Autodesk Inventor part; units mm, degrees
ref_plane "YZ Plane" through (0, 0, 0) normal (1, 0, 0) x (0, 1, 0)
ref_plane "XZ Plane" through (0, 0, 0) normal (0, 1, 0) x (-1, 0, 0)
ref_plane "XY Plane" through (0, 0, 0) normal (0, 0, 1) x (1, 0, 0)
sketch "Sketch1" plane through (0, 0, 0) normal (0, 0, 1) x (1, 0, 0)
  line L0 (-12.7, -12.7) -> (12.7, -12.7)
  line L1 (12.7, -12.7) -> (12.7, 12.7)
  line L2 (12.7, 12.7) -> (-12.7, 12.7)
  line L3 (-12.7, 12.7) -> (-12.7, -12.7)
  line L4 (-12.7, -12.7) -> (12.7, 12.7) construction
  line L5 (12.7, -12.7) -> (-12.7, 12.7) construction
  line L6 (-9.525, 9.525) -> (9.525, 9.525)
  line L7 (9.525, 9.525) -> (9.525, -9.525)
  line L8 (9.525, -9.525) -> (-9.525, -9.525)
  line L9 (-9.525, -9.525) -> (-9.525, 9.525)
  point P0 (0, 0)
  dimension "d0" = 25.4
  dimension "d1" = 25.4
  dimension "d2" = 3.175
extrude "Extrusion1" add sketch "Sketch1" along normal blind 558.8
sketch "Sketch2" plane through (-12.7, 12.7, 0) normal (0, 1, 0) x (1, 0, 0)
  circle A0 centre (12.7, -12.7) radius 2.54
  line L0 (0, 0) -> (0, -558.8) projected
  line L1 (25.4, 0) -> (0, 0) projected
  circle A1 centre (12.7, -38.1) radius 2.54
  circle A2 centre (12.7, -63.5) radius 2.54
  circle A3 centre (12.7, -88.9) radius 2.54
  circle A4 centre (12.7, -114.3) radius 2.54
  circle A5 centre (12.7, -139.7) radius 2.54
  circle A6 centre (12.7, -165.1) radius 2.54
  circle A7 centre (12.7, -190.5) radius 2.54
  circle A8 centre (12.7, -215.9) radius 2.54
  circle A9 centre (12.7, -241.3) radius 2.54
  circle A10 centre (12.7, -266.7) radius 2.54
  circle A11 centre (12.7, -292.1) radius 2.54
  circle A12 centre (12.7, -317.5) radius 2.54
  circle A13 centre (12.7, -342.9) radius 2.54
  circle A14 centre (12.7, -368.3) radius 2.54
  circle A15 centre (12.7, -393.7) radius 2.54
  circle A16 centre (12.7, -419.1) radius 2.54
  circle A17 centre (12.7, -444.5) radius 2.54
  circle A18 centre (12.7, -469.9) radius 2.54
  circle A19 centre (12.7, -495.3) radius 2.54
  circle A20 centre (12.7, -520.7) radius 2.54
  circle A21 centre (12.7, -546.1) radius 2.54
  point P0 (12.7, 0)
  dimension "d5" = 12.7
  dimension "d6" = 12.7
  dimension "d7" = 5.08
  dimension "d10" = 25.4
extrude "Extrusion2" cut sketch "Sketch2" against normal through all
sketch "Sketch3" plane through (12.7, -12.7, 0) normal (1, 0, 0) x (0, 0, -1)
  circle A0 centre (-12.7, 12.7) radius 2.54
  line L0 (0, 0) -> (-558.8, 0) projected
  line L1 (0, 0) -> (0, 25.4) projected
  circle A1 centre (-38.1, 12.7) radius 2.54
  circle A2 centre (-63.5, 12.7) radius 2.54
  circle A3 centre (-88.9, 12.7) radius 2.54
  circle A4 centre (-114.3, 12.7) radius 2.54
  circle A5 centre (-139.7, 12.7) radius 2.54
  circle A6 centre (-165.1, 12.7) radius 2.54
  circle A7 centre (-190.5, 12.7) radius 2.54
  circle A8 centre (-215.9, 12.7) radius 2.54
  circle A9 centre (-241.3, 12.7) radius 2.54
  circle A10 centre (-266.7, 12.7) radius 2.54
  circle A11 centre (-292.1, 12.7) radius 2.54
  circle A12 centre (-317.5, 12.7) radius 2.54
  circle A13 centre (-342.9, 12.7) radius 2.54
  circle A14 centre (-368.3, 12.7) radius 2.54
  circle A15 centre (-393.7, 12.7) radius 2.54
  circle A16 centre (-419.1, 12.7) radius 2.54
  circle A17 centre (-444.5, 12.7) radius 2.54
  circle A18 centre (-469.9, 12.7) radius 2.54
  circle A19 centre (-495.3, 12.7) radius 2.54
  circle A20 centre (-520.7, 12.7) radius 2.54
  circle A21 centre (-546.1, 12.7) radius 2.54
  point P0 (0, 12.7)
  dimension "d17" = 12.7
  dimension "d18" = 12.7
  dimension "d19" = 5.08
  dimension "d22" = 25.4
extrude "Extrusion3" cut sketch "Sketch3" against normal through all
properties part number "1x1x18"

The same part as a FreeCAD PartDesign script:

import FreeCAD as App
import Part
import Sketcher
from FreeCAD import Vector
Q = App.Units.Quantity


def add_polygon(sketch, points):
    """Adds a closed chain of lines whose ends are joined by coincident constraints."""
    first, n = sketch.GeometryCount, len(points)
    for a, b in zip(points, points[1:] + points[:1]):
        sketch.addGeometry(Part.LineSegment(App.Vector(*a, 0), App.Vector(*b, 0)), False)
    for i in range(n):
        sketch.addConstraint(Sketcher.Constraint("Coincident", first + i, 2, first + (i + 1) % n, 1))

doc = App.newDocument("Part")
body = doc.addObject("PartDesign::Body", "Body")

# Sketch on XY plane
sketch1 = body.newObject("Sketcher::SketchObject", "Sketch")
sketch1.AttachmentSupport = (doc.getObject("XY_Plane"), [""])
sketch1.MapMode = "FlatFace"
add_polygon(sketch1, [(-12.7, 12.7), (-12.7, -12.7), (12.7, -12.7), (12.7, 12.7)])  # lines 0-3
add_polygon(sketch1, [(-9.525, -9.525), (-9.525, 9.525), (9.525, 9.525), (9.525, -9.525)])  # lines 4-7
sketch1.addConstraint(Sketcher.Constraint("Vertical", 0))
sketch1.addConstraint(Sketcher.Constraint("Horizontal", 1))
sketch1.addConstraint(Sketcher.Constraint("Vertical", 2))
sketch1.addConstraint(Sketcher.Constraint("Horizontal", 3))
sketch1.addConstraint(Sketcher.Constraint("Vertical", 4))
sketch1.addConstraint(Sketcher.Constraint("Horizontal", 5))
sketch1.addConstraint(Sketcher.Constraint("Vertical", 6))
sketch1.addConstraint(Sketcher.Constraint("Horizontal", 7))
sketch1.addConstraint(Sketcher.Constraint("Symmetric", 0, 2, 2, 2, -1, 1))
sketch1.addConstraint(Sketcher.Constraint("Symmetric", 4, 2, 6, 2, -1, 1))
sketch1.addConstraint(Sketcher.Constraint("Equal", 3, 0))
sketch1.addConstraint(Sketcher.Constraint("Equal", 7, 4))
sketch1.addConstraint(Sketcher.Constraint("DistanceX", 1, 1, 1, 2, Q("1 in")))
sketch1.addConstraint(Sketcher.Constraint("DistanceX", 3, 2, 4, 2, Q("0.125 in")))
pad1 = body.newObject("PartDesign::Pad", "Pad")
pad1.Profile = sketch1
pad1.Length = Q("22 in")

# Sketch on XZ plane
sketch2 = body.newObject("Sketcher::SketchObject", "Sketch001")
sketch2.AttachmentSupport = (doc.getObject("XZ_Plane"), [""])
sketch2.MapMode = "FlatFace"
sketch2.AttachmentOffset = App.Placement(Vector(0, 0, -0.5 * 25.4), App.Rotation())
sketch2.addGeometry(Part.Circle(Vector(0, 12.7, 0), Vector(0, 0, 1), 2.54), False)
sketch2.addGeometry(Part.Circle(Vector(0, 38.1, 0), Vector(0, 0, 1), 2.54), False)
sketch2.addGeometry(Part.Circle(Vector(0, 63.5, 0), Vector(0, 0, 1), 2.54), False)
sketch2.addGeometry(Part.Circle(Vector(0, 88.9, 0), Vector(0, 0, 1), 2.54), False)
sketch2.addGeometry(Part.Circle(Vector(0, 114.3, 0), Vector(0, 0, 1), 2.54), False)
sketch2.addGeometry(Part.Circle(Vector(0, 139.7, 0), Vector(0, 0, 1), 2.54), False)
sketch2.addGeometry(Part.Circle(Vector(0, 165.1, 0), Vector(0, 0, 1), 2.54), False)
sketch2.addGeometry(Part.Circle(Vector(0, 190.5, 0), Vector(0, 0, 1), 2.54), False)
sketch2.addGeometry(Part.Circle(Vector(0, 215.9, 0), Vector(0, 0, 1), 2.54), False)
sketch2.addGeometry(Part.Circle(Vector(0, 241.3, 0), Vector(0, 0, 1), 2.54), False)
sketch2.addGeometry(Part.Circle(Vector(0, 266.7, 0), Vector(0, 0, 1), 2.54), False)
sketch2.addGeometry(Part.Circle(Vector(0, 292.1, 0), Vector(0, 0, 1), 2.54), False)
sketch2.addGeometry(Part.Circle(Vector(0, 317.5, 0), Vector(0, 0, 1), 2.54), False)
sketch2.addGeometry(Part.Circle(Vector(0, 342.9, 0), Vector(0, 0, 1), 2.54), False)
sketch2.addGeometry(Part.Circle(Vector(0, 368.3, 0), Vector(0, 0, 1), 2.54), False)
sketch2.addGeometry(Part.Circle(Vector(0, 393.7, 0), Vector(0, 0, 1), 2.54), False)
sketch2.addGeometry(Part.Circle(Vector(0, 419.1, 0), Vector(0, 0, 1), 2.54), False)
sketch2.addGeometry(Part.Circle(Vector(0, 444.5, 0), Vector(0, 0, 1), 2.54), False)
sketch2.addGeometry(Part.Circle(Vector(0, 469.9, 0), Vector(0, 0, 1), 2.54), False)
sketch2.addGeometry(Part.Circle(Vector(0, 495.3, 0), Vector(0, 0, 1), 2.54), False)
sketch2.addGeometry(Part.Circle(Vector(0, 520.7, 0), Vector(0, 0, 1), 2.54), False)
sketch2.addGeometry(Part.Circle(Vector(0, 546.1, 0), Vector(0, 0, 1), 2.54), False)
sketch2.addConstraint(Sketcher.Constraint("Equal", 0, 1))
sketch2.addConstraint(Sketcher.Constraint("Equal", 1, 2))
sketch2.addConstraint(Sketcher.Constraint("Equal", 2, 3))
sketch2.addConstraint(Sketcher.Constraint("Equal", 3, 4))
sketch2.addConstraint(Sketcher.Constraint("Equal", 4, 5))
sketch2.addConstraint(Sketcher.Constraint("Equal", 5, 6))
sketch2.addConstraint(Sketcher.Constraint("Equal", 6, 7))
sketch2.addConstraint(Sketcher.Constraint("Equal", 7, 8))
sketch2.addConstraint(Sketcher.Constraint("Equal", 8, 9))
sketch2.addConstraint(Sketcher.Constraint("Equal", 9, 10))
sketch2.addConstraint(Sketcher.Constraint("Equal", 10, 11))
sketch2.addConstraint(Sketcher.Constraint("Equal", 11, 12))
sketch2.addConstraint(Sketcher.Constraint("Equal", 12, 13))
sketch2.addConstraint(Sketcher.Constraint("Equal", 13, 14))
sketch2.addConstraint(Sketcher.Constraint("Equal", 14, 15))
sketch2.addConstraint(Sketcher.Constraint("Equal", 15, 16))
sketch2.addConstraint(Sketcher.Constraint("Equal", 16, 17))
sketch2.addConstraint(Sketcher.Constraint("Equal", 17, 18))
sketch2.addConstraint(Sketcher.Constraint("Equal", 18, 19))
sketch2.addConstraint(Sketcher.Constraint("Equal", 19, 20))
sketch2.addConstraint(Sketcher.Constraint("Equal", 20, 21))
sketch2.addConstraint(Sketcher.Constraint("PointOnObject", 0, 3, -2))
sketch2.addConstraint(Sketcher.Constraint("PointOnObject", 1, 3, -2))
sketch2.addConstraint(Sketcher.Constraint("PointOnObject", 2, 3, -2))
sketch2.addConstraint(Sketcher.Constraint("PointOnObject", 3, 3, -2))
sketch2.addConstraint(Sketcher.Constraint("PointOnObject", 4, 3, -2))
sketch2.addConstraint(Sketcher.Constraint("PointOnObject", 5, 3, -2))
sketch2.addConstraint(Sketcher.Constraint("PointOnObject", 6, 3, -2))
sketch2.addConstraint(Sketcher.Constraint("PointOnObject", 7, 3, -2))
sketch2.addConstraint(Sketcher.Constraint("PointOnObject", 8, 3, -2))
sketch2.addConstraint(Sketcher.Constraint("PointOnObject", 9, 3, -2))
sketch2.addConstraint(Sketcher.Constraint("PointOnObject", 10, 3, -2))
sketch2.addConstraint(Sketcher.Constraint("PointOnObject", 11, 3, -2))
sketch2.addConstraint(Sketcher.Constraint("PointOnObject", 12, 3, -2))
sketch2.addConstraint(Sketcher.Constraint("PointOnObject", 13, 3, -2))
sketch2.addConstraint(Sketcher.Constraint("PointOnObject", 14, 3, -2))
sketch2.addConstraint(Sketcher.Constraint("PointOnObject", 15, 3, -2))
sketch2.addConstraint(Sketcher.Constraint("PointOnObject", 16, 3, -2))
sketch2.addConstraint(Sketcher.Constraint("PointOnObject", 17, 3, -2))
sketch2.addConstraint(Sketcher.Constraint("PointOnObject", 18, 3, -2))
sketch2.addConstraint(Sketcher.Constraint("PointOnObject", 19, 3, -2))
sketch2.addConstraint(Sketcher.Constraint("PointOnObject", 20, 3, -2))
sketch2.addConstraint(Sketcher.Constraint("PointOnObject", 21, 3, -2))
sketch2.addConstraint(Sketcher.Constraint("Diameter", 0, Q("0.2 in")))
sketch2.addConstraint(Sketcher.Constraint("DistanceY", 0, 3, 1, 3, Q("1 in")))
sketch2.addConstraint(Sketcher.Constraint("DistanceY", 1, 3, 2, 3, Q("1 in")))
sketch2.addConstraint(Sketcher.Constraint("DistanceY", 2, 3, 3, 3, Q("1 in")))
sketch2.addConstraint(Sketcher.Constraint("DistanceY", 3, 3, 4, 3, Q("1 in")))
sketch2.addConstraint(Sketcher.Constraint("DistanceY", 4, 3, 5, 3, Q("1 in")))
sketch2.addConstraint(Sketcher.Constraint("DistanceY", 5, 3, 6, 3, Q("1 in")))
sketch2.addConstraint(Sketcher.Constraint("DistanceY", 6, 3, 7, 3, Q("1 in")))
sketch2.addConstraint(Sketcher.Constraint("DistanceY", 7, 3, 8, 3, Q("1 in")))
sketch2.addConstraint(Sketcher.Constraint("DistanceY", 8, 3, 9, 3, Q("1 in")))
sketch2.addConstraint(Sketcher.Constraint("DistanceY", 9, 3, 10, 3, Q("1 in")))
sketch2.addConstraint(Sketcher.Constraint("DistanceY", 10, 3, 11, 3, Q("1 in")))
sketch2.addConstraint(Sketcher.Constraint("DistanceY", 11, 3, 12, 3, Q("1 in")))
sketch2.addConstraint(Sketcher.Constraint("DistanceY", 12, 3, 13, 3, Q("1 in")))
sketch2.addConstraint(Sketcher.Constraint("DistanceY", 13, 3, 14, 3, Q("1 in")))
sketch2.addConstraint(Sketcher.Constraint("DistanceY", 14, 3, 15, 3, Q("1 in")))
sketch2.addConstraint(Sketcher.Constraint("DistanceY", 15, 3, 16, 3, Q("1 in")))
sketch2.addConstraint(Sketcher.Constraint("DistanceY", 16, 3, 17, 3, Q("1 in")))
sketch2.addConstraint(Sketcher.Constraint("DistanceY", 17, 3, 18, 3, Q("1 in")))
sketch2.addConstraint(Sketcher.Constraint("DistanceY", 18, 3, 19, 3, Q("1 in")))
sketch2.addConstraint(Sketcher.Constraint("DistanceY", 19, 3, 20, 3, Q("1 in")))
sketch2.addConstraint(Sketcher.Constraint("DistanceY", 20, 3, 21, 3, Q("1 in")))
sketch2.addConstraint(Sketcher.Constraint("DistanceY", -1, 1, 0, 3, Q("0.5 in")))
pocket1 = body.newObject("PartDesign::Pocket", "Pocket")
pocket1.Profile = sketch2
pocket1.Type = "ThroughAll"
pocket1.Reversed = True

# Sketch on YZ plane
sketch3 = body.newObject("Sketcher::SketchObject", "Sketch002")
sketch3.AttachmentSupport = (doc.getObject("YZ_Plane"), [""])
sketch3.MapMode = "FlatFace"
sketch3.AttachmentOffset = App.Placement(Vector(0, 0, 0.5 * 25.4), App.Rotation())
sketch3.addGeometry(Part.Circle(Vector(0, 12.7, 0), Vector(0, 0, 1), 2.54), False)
sketch3.addGeometry(Part.Circle(Vector(0, 38.1, 0), Vector(0, 0, 1), 2.54), False)
sketch3.addGeometry(Part.Circle(Vector(0, 63.5, 0), Vector(0, 0, 1), 2.54), False)
sketch3.addGeometry(Part.Circle(Vector(0, 88.9, 0), Vector(0, 0, 1), 2.54), False)
sketch3.addGeometry(Part.Circle(Vector(0, 114.3, 0), Vector(0, 0, 1), 2.54), False)
sketch3.addGeometry(Part.Circle(Vector(0, 139.7, 0), Vector(0, 0, 1), 2.54), False)
sketch3.addGeometry(Part.Circle(Vector(0, 165.1, 0), Vector(0, 0, 1), 2.54), False)
sketch3.addGeometry(Part.Circle(Vector(0, 190.5, 0), Vector(0, 0, 1), 2.54), False)
sketch3.addGeometry(Part.Circle(Vector(0, 215.9, 0), Vector(0, 0, 1), 2.54), False)
sketch3.addGeometry(Part.Circle(Vector(0, 241.3, 0), Vector(0, 0, 1), 2.54), False)
sketch3.addGeometry(Part.Circle(Vector(0, 266.7, 0), Vector(0, 0, 1), 2.54), False)
sketch3.addGeometry(Part.Circle(Vector(0, 292.1, 0), Vector(0, 0, 1), 2.54), False)
sketch3.addGeometry(Part.Circle(Vector(0, 317.5, 0), Vector(0, 0, 1), 2.54), False)
sketch3.addGeometry(Part.Circle(Vector(0, 342.9, 0), Vector(0, 0, 1), 2.54), False)
sketch3.addGeometry(Part.Circle(Vector(0, 368.3, 0), Vector(0, 0, 1), 2.54), False)
sketch3.addGeometry(Part.Circle(Vector(0, 393.7, 0), Vector(0, 0, 1), 2.54), False)
sketch3.addGeometry(Part.Circle(Vector(0, 419.1, 0), Vector(0, 0, 1), 2.54), False)
sketch3.addGeometry(Part.Circle(Vector(0, 444.5, 0), Vector(0, 0, 1), 2.54), False)
sketch3.addGeometry(Part.Circle(Vector(0, 469.9, 0), Vector(0, 0, 1), 2.54), False)
sketch3.addGeometry(Part.Circle(Vector(0, 495.3, 0), Vector(0, 0, 1), 2.54), False)
sketch3.addGeometry(Part.Circle(Vector(0, 520.7, 0), Vector(0, 0, 1), 2.54), False)
sketch3.addGeometry(Part.Circle(Vector(0, 546.1, 0), Vector(0, 0, 1), 2.54), False)
sketch3.addConstraint(Sketcher.Constraint("Equal", 0, 1))
sketch3.addConstraint(Sketcher.Constraint("Equal", 1, 2))
sketch3.addConstraint(Sketcher.Constraint("Equal", 2, 3))
sketch3.addConstraint(Sketcher.Constraint("Equal", 3, 4))
sketch3.addConstraint(Sketcher.Constraint("Equal", 4, 5))
sketch3.addConstraint(Sketcher.Constraint("Equal", 5, 6))
sketch3.addConstraint(Sketcher.Constraint("Equal", 6, 7))
sketch3.addConstraint(Sketcher.Constraint("Equal", 7, 8))
sketch3.addConstraint(Sketcher.Constraint("Equal", 8, 9))
sketch3.addConstraint(Sketcher.Constraint("Equal", 9, 10))
sketch3.addConstraint(Sketcher.Constraint("Equal", 10, 11))
sketch3.addConstraint(Sketcher.Constraint("Equal", 11, 12))
sketch3.addConstraint(Sketcher.Constraint("Equal", 12, 13))
sketch3.addConstraint(Sketcher.Constraint("Equal", 13, 14))
sketch3.addConstraint(Sketcher.Constraint("Equal", 14, 15))
sketch3.addConstraint(Sketcher.Constraint("Equal", 15, 16))
sketch3.addConstraint(Sketcher.Constraint("Equal", 16, 17))
sketch3.addConstraint(Sketcher.Constraint("Equal", 17, 18))
sketch3.addConstraint(Sketcher.Constraint("Equal", 18, 19))
sketch3.addConstraint(Sketcher.Constraint("Equal", 19, 20))
sketch3.addConstraint(Sketcher.Constraint("Equal", 20, 21))
sketch3.addConstraint(Sketcher.Constraint("PointOnObject", 0, 3, -2))
sketch3.addConstraint(Sketcher.Constraint("PointOnObject", 1, 3, -2))
sketch3.addConstraint(Sketcher.Constraint("PointOnObject", 2, 3, -2))
sketch3.addConstraint(Sketcher.Constraint("PointOnObject", 3, 3, -2))
sketch3.addConstraint(Sketcher.Constraint("PointOnObject", 4, 3, -2))
sketch3.addConstraint(Sketcher.Constraint("PointOnObject", 5, 3, -2))
sketch3.addConstraint(Sketcher.Constraint("PointOnObject", 6, 3, -2))
sketch3.addConstraint(Sketcher.Constraint("PointOnObject", 7, 3, -2))
sketch3.addConstraint(Sketcher.Constraint("PointOnObject", 8, 3, -2))
sketch3.addConstraint(Sketcher.Constraint("PointOnObject", 9, 3, -2))
sketch3.addConstraint(Sketcher.Constraint("PointOnObject", 10, 3, -2))
sketch3.addConstraint(Sketcher.Constraint("PointOnObject", 11, 3, -2))
sketch3.addConstraint(Sketcher.Constraint("PointOnObject", 12, 3, -2))
sketch3.addConstraint(Sketcher.Constraint("PointOnObject", 13, 3, -2))
sketch3.addConstraint(Sketcher.Constraint("PointOnObject", 14, 3, -2))
sketch3.addConstraint(Sketcher.Constraint("PointOnObject", 15, 3, -2))
sketch3.addConstraint(Sketcher.Constraint("PointOnObject", 16, 3, -2))
sketch3.addConstraint(Sketcher.Constraint("PointOnObject", 17, 3, -2))
sketch3.addConstraint(Sketcher.Constraint("PointOnObject", 18, 3, -2))
sketch3.addConstraint(Sketcher.Constraint("PointOnObject", 19, 3, -2))
sketch3.addConstraint(Sketcher.Constraint("PointOnObject", 20, 3, -2))
sketch3.addConstraint(Sketcher.Constraint("PointOnObject", 21, 3, -2))
sketch3.addConstraint(Sketcher.Constraint("Diameter", 0, Q("0.2 in")))
sketch3.addConstraint(Sketcher.Constraint("DistanceY", 0, 3, 1, 3, Q("1 in")))
sketch3.addConstraint(Sketcher.Constraint("DistanceY", 1, 3, 2, 3, Q("1 in")))
sketch3.addConstraint(Sketcher.Constraint("DistanceY", 2, 3, 3, 3, Q("1 in")))
sketch3.addConstraint(Sketcher.Constraint("DistanceY", 3, 3, 4, 3, Q("1 in")))
sketch3.addConstraint(Sketcher.Constraint("DistanceY", 4, 3, 5, 3, Q("1 in")))
sketch3.addConstraint(Sketcher.Constraint("DistanceY", 5, 3, 6, 3, Q("1 in")))
sketch3.addConstraint(Sketcher.Constraint("DistanceY", 6, 3, 7, 3, Q("1 in")))
sketch3.addConstraint(Sketcher.Constraint("DistanceY", 7, 3, 8, 3, Q("1 in")))
sketch3.addConstraint(Sketcher.Constraint("DistanceY", 8, 3, 9, 3, Q("1 in")))
sketch3.addConstraint(Sketcher.Constraint("DistanceY", 9, 3, 10, 3, Q("1 in")))
sketch3.addConstraint(Sketcher.Constraint("DistanceY", 10, 3, 11, 3, Q("1 in")))
sketch3.addConstraint(Sketcher.Constraint("DistanceY", 11, 3, 12, 3, Q("1 in")))
sketch3.addConstraint(Sketcher.Constraint("DistanceY", 12, 3, 13, 3, Q("1 in")))
sketch3.addConstraint(Sketcher.Constraint("DistanceY", 13, 3, 14, 3, Q("1 in")))
sketch3.addConstraint(Sketcher.Constraint("DistanceY", 14, 3, 15, 3, Q("1 in")))
sketch3.addConstraint(Sketcher.Constraint("DistanceY", 15, 3, 16, 3, Q("1 in")))
sketch3.addConstraint(Sketcher.Constraint("DistanceY", 16, 3, 17, 3, Q("1 in")))
sketch3.addConstraint(Sketcher.Constraint("DistanceY", 17, 3, 18, 3, Q("1 in")))
sketch3.addConstraint(Sketcher.Constraint("DistanceY", 18, 3, 19, 3, Q("1 in")))
sketch3.addConstraint(Sketcher.Constraint("DistanceY", 19, 3, 20, 3, Q("1 in")))
sketch3.addConstraint(Sketcher.Constraint("DistanceY", 20, 3, 21, 3, Q("1 in")))
sketch3.addConstraint(Sketcher.Constraint("DistanceY", -1, 1, 0, 3, Q("0.5 in")))
pocket2 = body.newObject("PartDesign::Pocket", "Pocket001")
pocket2.Profile = sketch3
pocket2.Type = "ThroughAll"

doc.recompute()
